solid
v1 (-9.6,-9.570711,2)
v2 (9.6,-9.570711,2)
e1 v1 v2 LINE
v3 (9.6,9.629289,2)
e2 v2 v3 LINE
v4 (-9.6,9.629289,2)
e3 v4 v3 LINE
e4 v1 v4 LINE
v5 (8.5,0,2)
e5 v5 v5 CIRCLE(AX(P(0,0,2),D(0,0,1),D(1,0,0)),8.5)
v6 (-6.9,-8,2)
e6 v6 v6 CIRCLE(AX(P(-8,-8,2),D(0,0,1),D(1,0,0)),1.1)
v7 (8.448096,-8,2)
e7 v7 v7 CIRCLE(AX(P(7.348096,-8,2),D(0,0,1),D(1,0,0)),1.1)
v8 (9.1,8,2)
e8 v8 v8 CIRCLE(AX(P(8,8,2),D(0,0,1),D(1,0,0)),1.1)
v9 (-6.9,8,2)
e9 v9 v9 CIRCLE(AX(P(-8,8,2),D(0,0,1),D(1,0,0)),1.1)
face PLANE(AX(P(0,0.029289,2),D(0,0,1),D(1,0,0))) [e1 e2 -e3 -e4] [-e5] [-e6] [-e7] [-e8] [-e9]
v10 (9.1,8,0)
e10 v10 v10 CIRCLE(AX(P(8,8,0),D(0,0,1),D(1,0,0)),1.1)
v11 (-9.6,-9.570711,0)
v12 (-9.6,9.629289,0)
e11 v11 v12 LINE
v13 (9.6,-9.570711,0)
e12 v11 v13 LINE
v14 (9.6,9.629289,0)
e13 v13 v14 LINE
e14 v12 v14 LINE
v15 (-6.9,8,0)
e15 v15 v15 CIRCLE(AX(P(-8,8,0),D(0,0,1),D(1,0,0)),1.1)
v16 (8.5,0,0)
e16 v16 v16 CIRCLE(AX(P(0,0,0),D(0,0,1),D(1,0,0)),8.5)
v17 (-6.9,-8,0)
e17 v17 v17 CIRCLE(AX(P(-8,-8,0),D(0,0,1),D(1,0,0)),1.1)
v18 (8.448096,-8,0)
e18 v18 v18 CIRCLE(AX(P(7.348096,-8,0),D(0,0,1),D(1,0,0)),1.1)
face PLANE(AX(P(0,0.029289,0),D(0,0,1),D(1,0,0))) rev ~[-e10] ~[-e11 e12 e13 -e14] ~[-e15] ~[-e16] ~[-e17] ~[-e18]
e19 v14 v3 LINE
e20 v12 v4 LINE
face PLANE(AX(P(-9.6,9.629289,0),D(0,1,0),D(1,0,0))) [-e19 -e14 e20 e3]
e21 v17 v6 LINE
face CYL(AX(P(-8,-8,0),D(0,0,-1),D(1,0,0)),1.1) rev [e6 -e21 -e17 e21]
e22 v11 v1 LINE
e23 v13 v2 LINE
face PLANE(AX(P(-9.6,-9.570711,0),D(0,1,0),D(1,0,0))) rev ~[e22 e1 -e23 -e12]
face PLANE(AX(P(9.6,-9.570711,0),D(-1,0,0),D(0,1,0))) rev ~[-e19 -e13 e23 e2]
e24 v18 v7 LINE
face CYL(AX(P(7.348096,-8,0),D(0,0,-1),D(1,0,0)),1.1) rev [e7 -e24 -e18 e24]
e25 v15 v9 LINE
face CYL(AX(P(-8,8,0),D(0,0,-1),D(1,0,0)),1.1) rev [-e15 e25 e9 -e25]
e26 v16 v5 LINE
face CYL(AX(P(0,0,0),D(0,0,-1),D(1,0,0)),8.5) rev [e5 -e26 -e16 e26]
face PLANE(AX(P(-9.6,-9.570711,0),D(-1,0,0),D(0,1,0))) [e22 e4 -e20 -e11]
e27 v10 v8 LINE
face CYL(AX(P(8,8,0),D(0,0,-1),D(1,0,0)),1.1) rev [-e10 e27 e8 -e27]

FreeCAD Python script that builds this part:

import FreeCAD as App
import Part
import Sketcher
Q = App.Units.Quantity


def add_polygon(sketch, points):
    """Adds a closed chain of lines whose ends are joined by coincident constraints."""
    first, n = sketch.GeometryCount, len(points)
    for a, b in zip(points, points[1:] + points[:1]):
        sketch.addGeometry(Part.LineSegment(App.Vector(*a, 0), App.Vector(*b, 0)), False)
    for i in range(n):
        sketch.addConstraint(Sketcher.Constraint("Coincident", first + i, 2, first + (i + 1) % n, 1))

doc = App.newDocument("Part")
body = doc.addObject("PartDesign::Body", "Body")

sketch1 = body.newObject("Sketcher::SketchObject", "Sketch")
sketch1.AttachmentSupport = (doc.getObject("XY_Plane"), [""])
sketch1.MapMode = "FlatFace"
add_polygon(sketch1, [(-9.6, 9.629289), (-9.6, -9.570711), (9.6, -9.570711), (9.6, 9.629289)])
sketch1.addGeometry(Part.Circle(App.Vector(-8, -8, 0), App.Vector(0, 0, 1), 1.1), False)
sketch1.addGeometry(Part.Circle(App.Vector(0, 0, 0), App.Vector(0, 0, 1), 8.5), False)
sketch1.addGeometry(Part.Circle(App.Vector(7.348096, -8, 0), App.Vector(0, 0, 1), 1.1), False)
sketch1.addGeometry(Part.Circle(App.Vector(-8, 8, 0), App.Vector(0, 0, 1), 1.1), False)
sketch1.addGeometry(Part.Circle(App.Vector(8, 8, 0), App.Vector(0, 0, 1), 1.1), False)
sketch1.addConstraint([
    Sketcher.Constraint("Vertical", 0),
    Sketcher.Constraint("Horizontal", 1),
    Sketcher.Constraint("Vertical", 2),
    Sketcher.Constraint("Horizontal", 3),
    Sketcher.Constraint("Coincident", 5, 3, -1, 1),
    Sketcher.Constraint("Equal", 4, 6),
    Sketcher.Constraint("Equal", 6, 7),
    Sketcher.Constraint("Equal", 7, 8),
    Sketcher.Constraint("Symmetric", 4, 3, 8, 3, -1, 1),
    Sketcher.Constraint("Symmetric", 7, 3, 8, 3, -2),
    Sketcher.Constraint("Horizontal", 4, 3, 6, 3),
    Sketcher.Constraint("Equal", 3, 0),
    Sketcher.Constraint("Diameter", 5, Q("17 mm")),
    Sketcher.Constraint("Diameter", 4, Q("2.2 mm")),
    Sketcher.Constraint("DistanceX", 1, 1, 1, 2, Q("19.2 mm")),
    Sketcher.Constraint("DistanceX", 4, 3, -1, 1, Q("8 mm")),
    Sketcher.Constraint("DistanceY", 4, 3, -1, 1, Q("8 mm")),
    Sketcher.Constraint("DistanceX", 0, 2, -1, 1, Q("9.6 mm")),
    Sketcher.Constraint("DistanceY", 0, 2, -1, 1, Q("9.570711 mm")),
    Sketcher.Constraint("DistanceX", -1, 1, 6, 3, Q("7.348096 mm")),
])
pad1 = body.newObject("PartDesign::Pad", "Pad")
pad1.Profile = sketch1
pad1.Length = 2

doc.recompute()
